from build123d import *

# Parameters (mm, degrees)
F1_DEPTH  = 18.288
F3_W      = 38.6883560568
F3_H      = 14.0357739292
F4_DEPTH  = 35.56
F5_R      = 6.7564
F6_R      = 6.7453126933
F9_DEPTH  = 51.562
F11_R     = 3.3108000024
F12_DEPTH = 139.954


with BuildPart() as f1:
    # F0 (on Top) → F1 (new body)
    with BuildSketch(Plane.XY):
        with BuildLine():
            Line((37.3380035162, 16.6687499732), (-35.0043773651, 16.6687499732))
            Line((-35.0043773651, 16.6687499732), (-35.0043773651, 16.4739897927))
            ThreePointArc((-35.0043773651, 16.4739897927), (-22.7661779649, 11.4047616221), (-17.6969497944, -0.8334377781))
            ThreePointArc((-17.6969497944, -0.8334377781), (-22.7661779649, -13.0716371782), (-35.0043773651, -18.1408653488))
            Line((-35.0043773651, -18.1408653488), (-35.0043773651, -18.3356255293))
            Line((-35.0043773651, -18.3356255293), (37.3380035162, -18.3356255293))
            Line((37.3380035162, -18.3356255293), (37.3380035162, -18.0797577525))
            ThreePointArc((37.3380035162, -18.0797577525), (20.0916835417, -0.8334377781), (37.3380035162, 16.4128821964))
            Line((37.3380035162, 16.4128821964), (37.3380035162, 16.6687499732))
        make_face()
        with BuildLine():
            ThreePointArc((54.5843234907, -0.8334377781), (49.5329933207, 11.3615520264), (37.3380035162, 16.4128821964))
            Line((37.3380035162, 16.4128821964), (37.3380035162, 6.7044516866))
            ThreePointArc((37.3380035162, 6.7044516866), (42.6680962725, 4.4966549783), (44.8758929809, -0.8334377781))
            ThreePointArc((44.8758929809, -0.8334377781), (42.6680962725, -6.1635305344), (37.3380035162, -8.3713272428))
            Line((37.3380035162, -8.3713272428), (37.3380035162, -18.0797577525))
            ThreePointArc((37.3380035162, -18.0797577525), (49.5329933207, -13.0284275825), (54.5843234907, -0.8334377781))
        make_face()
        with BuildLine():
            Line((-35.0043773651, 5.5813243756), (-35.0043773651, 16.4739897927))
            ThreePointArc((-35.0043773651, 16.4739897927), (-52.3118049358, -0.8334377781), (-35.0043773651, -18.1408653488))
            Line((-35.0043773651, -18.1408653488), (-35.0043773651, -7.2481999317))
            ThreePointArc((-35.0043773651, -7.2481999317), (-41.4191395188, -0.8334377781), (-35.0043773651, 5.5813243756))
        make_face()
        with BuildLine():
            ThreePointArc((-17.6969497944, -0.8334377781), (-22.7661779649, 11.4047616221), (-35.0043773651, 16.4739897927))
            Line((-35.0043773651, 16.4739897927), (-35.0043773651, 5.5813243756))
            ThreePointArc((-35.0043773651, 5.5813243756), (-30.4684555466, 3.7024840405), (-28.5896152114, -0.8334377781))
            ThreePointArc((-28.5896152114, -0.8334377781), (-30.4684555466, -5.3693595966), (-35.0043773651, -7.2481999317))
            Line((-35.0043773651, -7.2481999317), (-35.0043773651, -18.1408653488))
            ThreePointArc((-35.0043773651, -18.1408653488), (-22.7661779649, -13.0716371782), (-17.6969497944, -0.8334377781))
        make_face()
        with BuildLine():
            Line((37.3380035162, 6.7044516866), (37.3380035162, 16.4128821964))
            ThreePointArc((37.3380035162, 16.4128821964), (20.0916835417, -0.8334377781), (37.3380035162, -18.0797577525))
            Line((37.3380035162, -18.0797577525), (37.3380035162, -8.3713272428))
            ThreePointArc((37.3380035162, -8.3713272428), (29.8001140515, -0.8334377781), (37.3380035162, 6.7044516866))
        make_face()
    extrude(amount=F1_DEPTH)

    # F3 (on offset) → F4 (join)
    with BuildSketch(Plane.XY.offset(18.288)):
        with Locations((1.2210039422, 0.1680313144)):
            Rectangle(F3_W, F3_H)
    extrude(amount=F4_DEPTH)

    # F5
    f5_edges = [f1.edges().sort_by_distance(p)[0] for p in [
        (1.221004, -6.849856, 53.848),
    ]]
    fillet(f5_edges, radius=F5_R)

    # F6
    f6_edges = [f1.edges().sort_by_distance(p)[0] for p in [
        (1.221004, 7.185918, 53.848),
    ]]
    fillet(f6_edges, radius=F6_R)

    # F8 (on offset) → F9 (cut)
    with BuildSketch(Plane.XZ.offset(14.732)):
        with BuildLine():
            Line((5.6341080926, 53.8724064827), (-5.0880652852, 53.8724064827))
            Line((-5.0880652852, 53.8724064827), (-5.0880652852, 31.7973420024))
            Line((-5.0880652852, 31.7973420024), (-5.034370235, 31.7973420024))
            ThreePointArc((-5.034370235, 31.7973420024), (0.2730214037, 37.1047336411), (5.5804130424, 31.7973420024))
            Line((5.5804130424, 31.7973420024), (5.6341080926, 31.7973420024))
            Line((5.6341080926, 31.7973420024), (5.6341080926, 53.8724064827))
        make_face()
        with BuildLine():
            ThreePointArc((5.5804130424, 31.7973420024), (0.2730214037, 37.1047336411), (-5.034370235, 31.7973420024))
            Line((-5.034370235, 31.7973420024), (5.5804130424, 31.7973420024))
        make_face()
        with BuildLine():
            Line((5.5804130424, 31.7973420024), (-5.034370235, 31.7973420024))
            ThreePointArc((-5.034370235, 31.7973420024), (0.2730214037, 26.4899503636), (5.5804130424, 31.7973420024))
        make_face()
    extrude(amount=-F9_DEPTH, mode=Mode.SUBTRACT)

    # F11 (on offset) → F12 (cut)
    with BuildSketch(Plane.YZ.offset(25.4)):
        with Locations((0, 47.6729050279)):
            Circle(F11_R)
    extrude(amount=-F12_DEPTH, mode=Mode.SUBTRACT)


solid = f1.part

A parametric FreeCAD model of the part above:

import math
import FreeCAD as App
import Part
import Sketcher
Q = App.Units.Quantity


def edges_at(feature, points):
    """Names of the edges that pass closest to the given points."""
    edges = feature.Shape.Edges
    near = lambda p: min(range(len(edges)), key=lambda i: edges[i].distToShape(Part.Vertex(*p))[0])
    return sorted({f"Edge{near(p) + 1}" for p in points})

doc = App.newDocument("Part")
body = doc.addObject("PartDesign::Body", "Body")

sketch1 = doc.addObject("Sketcher::SketchObject", "Sketch")
body.addObject(sketch1)
sketch1.AttachmentSupport = (doc.XY_Plane, [""])
sketch1.MapMode = "FlatFace"
sketch1.addGeometry([
    Part.LineSegment(App.Vector(37.338004, 16.66875, 0), App.Vector(-35.004377, 16.66875, 0)),
    Part.LineSegment(App.Vector(-35.004377, 16.66875, 0), App.Vector(-35.004377, 16.47399, 0)),
    Part.ArcOfCircle(Part.Circle(App.Vector(-35.004377, -0.833438, 0), App.Vector(0, 0, 1), 17.307428), math.radians(90), math.radians(270)),
    Part.LineSegment(App.Vector(-35.004377, -18.140865, 0), App.Vector(-35.004377, -18.335626, 0)),
    Part.LineSegment(App.Vector(-35.004377, -18.335626, 0), App.Vector(37.338004, -18.335626, 0)),
    Part.LineSegment(App.Vector(37.338004, -18.335626, 0), App.Vector(37.338004, -18.079758, 0)),
    Part.ArcOfCircle(Part.Circle(App.Vector(37.338004, -0.833438, 0), App.Vector(0, 0, 1), 17.24632), math.radians(-90), math.radians(0)),
    Part.ArcOfCircle(Part.Circle(App.Vector(37.338004, -0.833438, 0), App.Vector(0, 0, 1), 17.24632), math.radians(0), math.radians(90)),
    Part.LineSegment(App.Vector(37.338004, 16.412882, 0), App.Vector(37.338004, 16.66875, 0)),
    Part.ArcOfCircle(Part.Circle(App.Vector(-35.004377, -0.833438, 0), App.Vector(0, 0, 1), 6.414762), math.radians(0), math.radians(90)),
    Part.ArcOfCircle(Part.Circle(App.Vector(-35.004377, -0.833438, 0), App.Vector(0, 0, 1), 6.414762), math.radians(-90), math.radians(0)),
    Part.ArcOfCircle(Part.Circle(App.Vector(-35.004377, -0.833438, 0), App.Vector(0, 0, 1), 6.414762), math.radians(90), math.radians(270)),
    Part.ArcOfCircle(Part.Circle(App.Vector(37.338004, -0.833438, 0), App.Vector(0, 0, 1), 7.537889), math.radians(90), math.radians(270)),
    Part.ArcOfCircle(Part.Circle(App.Vector(37.338004, -0.833438, 0), App.Vector(0, 0, 1), 7.537889), math.radians(-90), math.radians(90)),
], False)
sketch1.addConstraint([
    Sketcher.Constraint("Coincident", 0, 2, 1, 1),
    Sketcher.Constraint("Coincident", 1, 2, 2, 1),
    Sketcher.Constraint("Coincident", 2, 2, 3, 1),
    Sketcher.Constraint("Coincident", 3, 2, 4, 1),
    Sketcher.Constraint("Coincident", 4, 2, 5, 1),
    Sketcher.Constraint("Coincident", 5, 2, 6, 1),
    Sketcher.Constraint("Tangent", 6, 2, 7, 1),
    Sketcher.Constraint("Coincident", 7, 2, 8, 1),
    Sketcher.Constraint("Coincident", 8, 2, 0, 1),
    Sketcher.Constraint("Tangent", 9, 1, 10, 2),
    Sketcher.Constraint("Tangent", 10, 1, 11, 2),
    Sketcher.Constraint("Tangent", 11, 1, 9, 2),
    Sketcher.Constraint("Tangent", 12, 1, 13, 2),
    Sketcher.Constraint("Coincident", 13, 1, 12, 2),
    Sketcher.Constraint("Horizontal", 0),
    Sketcher.Constraint("Vertical", 1),
    Sketcher.Constraint("Vertical", 3),
    Sketcher.Constraint("Horizontal", 4),
    Sketcher.Constraint("Vertical", 5),
    Sketcher.Constraint("Vertical", 8),
    Sketcher.Constraint("Coincident", 9, 3, 2, 3),
    Sketcher.Constraint("Coincident", 12, 3, 6, 3),
    Sketcher.Constraint("Equal", 6, 7),
    Sketcher.Constraint("Horizontal", 2, 3, 6, 3),
    Sketcher.Constraint("Horizontal", 13, 3, 6, 2),
    Sketcher.Constraint("Horizontal", 6, 2, 9, 1),
    Sketcher.Constraint("Vertical", 11, 3, 0, 2),
    Sketcher.Constraint("Vertical", 1, 2, 2, 2),
    Sketcher.Constraint("Vertical", 13, 3, 4, 2),
    Sketcher.Constraint("Vertical", 5, 2, 7, 2),
    Sketcher.Constraint("Vertical", 3, 2, 10, 1),
    Sketcher.Constraint("Vertical", 10, 1, 11, 1),
    Sketcher.Constraint("Vertical", 8, 2, 12, 1),
    Sketcher.Constraint("Vertical", 12, 1, 13, 1),
    Sketcher.Constraint("Equal", 1, 3),
    Sketcher.Constraint("DistanceX", -1, 1, 6, 3, Q("1.4700001 in")),
    Sketcher.Constraint("DistanceY", -1, 1, 0, 2, Q("0.65625 in")),
    Sketcher.Constraint("Radius", 6, 17.24632),
    Sketcher.Constraint("Radius", 12, 7.537889),
    Sketcher.Constraint("Radius", 2, 17.307428),
    Sketcher.Constraint("Radius", 9, 6.414762),
    Sketcher.Constraint("DistanceX", 0, 2, 0, 1, 72.342381),
    Sketcher.Constraint("DistanceY", 1, 2, 1, 1, 0.19476),
])
pad1 = doc.addObject("PartDesign::Pad", "Pad")
body.addObject(pad1)
pad1.Profile = sketch1
pad1.Length = Q("0.72 in")

sketch2 = doc.addObject("Sketcher::SketchObject", "Sketch001")
body.addObject(sketch2)
sketch2.AttachmentSupport = (doc.XY_Plane, [""])
sketch2.MapMode = "FlatFace"
sketch2.AttachmentOffset = App.Placement(App.Vector(0, 0, 0.72 * 25.4), App.Rotation())
sketch2.addGeometry([
    Part.LineSegment(App.Vector(-18.123174, 7.185918, 0), App.Vector(-18.123174, -6.849856, 0)),
    Part.LineSegment(App.Vector(-18.123174, -6.849856, 0), App.Vector(20.565182, -6.849856, 0)),
    Part.LineSegment(App.Vector(20.565182, -6.849856, 0), App.Vector(20.565182, 7.185918, 0)),
    Part.LineSegment(App.Vector(20.565182, 7.185918, 0), App.Vector(-18.123174, 7.185918, 0)),
], False)
sketch2.addConstraint([
    Sketcher.Constraint("Coincident", 0, 2, 1, 1),
    Sketcher.Constraint("Coincident", 1, 2, 2, 1),
    Sketcher.Constraint("Coincident", 2, 2, 3, 1),
    Sketcher.Constraint("Coincident", 3, 2, 0, 1),
    Sketcher.Constraint("Vertical", 0),
    Sketcher.Constraint("Horizontal", 1),
    Sketcher.Constraint("Vertical", 2),
    Sketcher.Constraint("Horizontal", 3),
    Sketcher.Constraint("DistanceX", 1, 1, 1, 2, 38.688356),
    Sketcher.Constraint("DistanceY", 0, 2, 0, 1, 14.035774),
    Sketcher.Constraint("DistanceX", -1, 1, 1, 2, 20.565182),
    Sketcher.Constraint("DistanceY", -1, 1, 2, 2, 7.185918),
])
pad2 = doc.addObject("PartDesign::Pad", "Pad001")
body.addObject(pad2)
pad2.Profile = sketch2
pad2.Length = Q("1.4 in")
doc.recompute()

fillet = doc.addObject("PartDesign::Fillet", "Fillet")
body.addObject(fillet)
fillet.Base = (pad2, edges_at(pad2, [(1.221, -6.85, 53.848)]))
fillet.Radius = Q("0.266 in")
doc.recompute()

fillet2 = doc.addObject("PartDesign::Fillet", "Fillet001")
body.addObject(fillet2)
fillet2.Base = (fillet, edges_at(fillet, [(1.221, 7.186, 53.848)]))
fillet2.Radius = 6.745313

sketch3 = doc.addObject("Sketcher::SketchObject", "Sketch002")
body.addObject(sketch3)
sketch3.AttachmentSupport = (doc.XZ_Plane, [""])
sketch3.MapMode = "FlatFace"
sketch3.AttachmentOffset = App.Placement(App.Vector(0, 0, 0.58 * 25.4), App.Rotation())
sketch3.addGeometry([
    Part.LineSegment(App.Vector(5.634108, 53.872406, 0), App.Vector(-5.088065, 53.872406, 0)),
    Part.LineSegment(App.Vector(-5.088065, 53.872406, 0), App.Vector(-5.088065, 31.797342, 0)),
    Part.LineSegment(App.Vector(-5.088065, 31.797342, 0), App.Vector(-5.03437, 31.797342, 0)),
    Part.ArcOfCircle(Part.Circle(App.Vector(0.273021, 31.797342, 0), App.Vector(0, 0, 1), 5.307392), math.radians(180), math.radians(360)),
    Part.LineSegment(App.Vector(5.580413, 31.797342, 0), App.Vector(5.634108, 31.797342, 0)),
    Part.LineSegment(App.Vector(5.634108, 31.797342, 0), App.Vector(5.634108, 53.872406, 0)),
], False)
sketch3.addConstraint([
    Sketcher.Constraint("Coincident", 0, 2, 1, 1),
    Sketcher.Constraint("Coincident", 1, 2, 2, 1),
    Sketcher.Constraint("Coincident", 2, 2, 3, 1),
    Sketcher.Constraint("Coincident", 3, 2, 4, 1),
    Sketcher.Constraint("Coincident", 4, 2, 5, 1),
    Sketcher.Constraint("Coincident", 5, 2, 0, 1),
    Sketcher.Constraint("Horizontal", 0),
    Sketcher.Constraint("Vertical", 1),
    Sketcher.Constraint("Horizontal", 2),
    Sketcher.Constraint("Horizontal", 4),
    Sketcher.Constraint("Vertical", 5),
    Sketcher.Constraint("Horizontal", 3, 3, 1, 2),
    Sketcher.Constraint("Horizontal", 2, 2, 3, 2),
    Sketcher.Constraint("Equal", 2, 4),
    Sketcher.Constraint("Radius", 3, 5.307392),
    Sketcher.Constraint("DistanceX", 0, 2, 0, 1, 10.722173),
    Sketcher.Constraint("DistanceY", 1, 2, 1, 1, 22.075064),
    Sketcher.Constraint("DistanceX", -1, 1, 3, 3, 0.273021),
    Sketcher.Constraint("DistanceY", -1, 1, 3, 3, 31.797342),
])
pocket1 = doc.addObject("PartDesign::Pocket", "Pocket")
body.addObject(pocket1)
pocket1.Profile = sketch3
pocket1.Length = Q("2.03 in")

sketch4 = doc.addObject("Sketcher::SketchObject", "Sketch003")
body.addObject(sketch4)
sketch4.AttachmentSupport = (doc.YZ_Plane, [""])
sketch4.MapMode = "FlatFace"
sketch4.AttachmentOffset = App.Placement(App.Vector(0, 0, 1 * 25.4), App.Rotation())
sketch4.addGeometry(Part.Circle(App.Vector(0, 47.672905, 0), App.Vector(0, 0, 1), 3.3108), False)
sketch4.addConstraint([
    Sketcher.Constraint("PointOnObject", 0, 3, -2),
    Sketcher.Constraint("Diameter", 0, 6.6216),
    Sketcher.Constraint("DistanceY", -1, 1, 0, 3, 47.672905),
])
pocket2 = doc.addObject("PartDesign::Pocket", "Pocket001")
body.addObject(pocket2)
pocket2.Profile = sketch4
pocket2.Length = Q("5.51 in")

doc.recompute()
